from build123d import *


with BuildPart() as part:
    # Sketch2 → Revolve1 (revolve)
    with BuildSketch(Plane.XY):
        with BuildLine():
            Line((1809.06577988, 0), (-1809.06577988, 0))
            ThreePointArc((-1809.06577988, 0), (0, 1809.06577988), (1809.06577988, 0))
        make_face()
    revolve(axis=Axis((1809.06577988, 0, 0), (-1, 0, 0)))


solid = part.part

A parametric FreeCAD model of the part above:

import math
import FreeCAD as App
import Part
import Sketcher
from FreeCAD import Vector
Q = App.Units.Quantity

doc = App.newDocument("Part")
body = doc.addObject("PartDesign::Body", "Body")

# Sketch on XY plane
sketch1 = body.newObject("Sketcher::SketchObject", "Sketch")
sketch1.AttachmentSupport = (doc.getObject("XY_Plane"), [""])
sketch1.MapMode = "FlatFace"
sketch1.addGeometry([
    Part.LineSegment(Vector(-1809, 0, 0), Vector(1809, 0, 0)),
    Part.ArcOfCircle(Part.Circle(Vector(0, 0, 0), Vector(0, 0, 1), 1809), math.radians(0), math.radians(180)),
], False)
sketch1.addConstraint([
    Sketcher.Constraint("Coincident", 0, 1, 1, 2),
    Sketcher.Constraint("Coincident", 1, 1, 0, 2),
    Sketcher.Constraint("Horizontal", 0),
    Sketcher.Constraint("Coincident", 1, 3, -1, 1),
    Sketcher.Constraint("PointOnObject", 0, 1, -1),
    Sketcher.Constraint("Radius", 1, Q("1809.06578 mm")),
])
revolution = body.newObject("PartDesign::Revolution", "Revolution")
revolution.Profile = sketch1
revolution.ReferenceAxis = (sketch1, ["H_Axis"])
revolution.Angle = 360

doc.recompute()
